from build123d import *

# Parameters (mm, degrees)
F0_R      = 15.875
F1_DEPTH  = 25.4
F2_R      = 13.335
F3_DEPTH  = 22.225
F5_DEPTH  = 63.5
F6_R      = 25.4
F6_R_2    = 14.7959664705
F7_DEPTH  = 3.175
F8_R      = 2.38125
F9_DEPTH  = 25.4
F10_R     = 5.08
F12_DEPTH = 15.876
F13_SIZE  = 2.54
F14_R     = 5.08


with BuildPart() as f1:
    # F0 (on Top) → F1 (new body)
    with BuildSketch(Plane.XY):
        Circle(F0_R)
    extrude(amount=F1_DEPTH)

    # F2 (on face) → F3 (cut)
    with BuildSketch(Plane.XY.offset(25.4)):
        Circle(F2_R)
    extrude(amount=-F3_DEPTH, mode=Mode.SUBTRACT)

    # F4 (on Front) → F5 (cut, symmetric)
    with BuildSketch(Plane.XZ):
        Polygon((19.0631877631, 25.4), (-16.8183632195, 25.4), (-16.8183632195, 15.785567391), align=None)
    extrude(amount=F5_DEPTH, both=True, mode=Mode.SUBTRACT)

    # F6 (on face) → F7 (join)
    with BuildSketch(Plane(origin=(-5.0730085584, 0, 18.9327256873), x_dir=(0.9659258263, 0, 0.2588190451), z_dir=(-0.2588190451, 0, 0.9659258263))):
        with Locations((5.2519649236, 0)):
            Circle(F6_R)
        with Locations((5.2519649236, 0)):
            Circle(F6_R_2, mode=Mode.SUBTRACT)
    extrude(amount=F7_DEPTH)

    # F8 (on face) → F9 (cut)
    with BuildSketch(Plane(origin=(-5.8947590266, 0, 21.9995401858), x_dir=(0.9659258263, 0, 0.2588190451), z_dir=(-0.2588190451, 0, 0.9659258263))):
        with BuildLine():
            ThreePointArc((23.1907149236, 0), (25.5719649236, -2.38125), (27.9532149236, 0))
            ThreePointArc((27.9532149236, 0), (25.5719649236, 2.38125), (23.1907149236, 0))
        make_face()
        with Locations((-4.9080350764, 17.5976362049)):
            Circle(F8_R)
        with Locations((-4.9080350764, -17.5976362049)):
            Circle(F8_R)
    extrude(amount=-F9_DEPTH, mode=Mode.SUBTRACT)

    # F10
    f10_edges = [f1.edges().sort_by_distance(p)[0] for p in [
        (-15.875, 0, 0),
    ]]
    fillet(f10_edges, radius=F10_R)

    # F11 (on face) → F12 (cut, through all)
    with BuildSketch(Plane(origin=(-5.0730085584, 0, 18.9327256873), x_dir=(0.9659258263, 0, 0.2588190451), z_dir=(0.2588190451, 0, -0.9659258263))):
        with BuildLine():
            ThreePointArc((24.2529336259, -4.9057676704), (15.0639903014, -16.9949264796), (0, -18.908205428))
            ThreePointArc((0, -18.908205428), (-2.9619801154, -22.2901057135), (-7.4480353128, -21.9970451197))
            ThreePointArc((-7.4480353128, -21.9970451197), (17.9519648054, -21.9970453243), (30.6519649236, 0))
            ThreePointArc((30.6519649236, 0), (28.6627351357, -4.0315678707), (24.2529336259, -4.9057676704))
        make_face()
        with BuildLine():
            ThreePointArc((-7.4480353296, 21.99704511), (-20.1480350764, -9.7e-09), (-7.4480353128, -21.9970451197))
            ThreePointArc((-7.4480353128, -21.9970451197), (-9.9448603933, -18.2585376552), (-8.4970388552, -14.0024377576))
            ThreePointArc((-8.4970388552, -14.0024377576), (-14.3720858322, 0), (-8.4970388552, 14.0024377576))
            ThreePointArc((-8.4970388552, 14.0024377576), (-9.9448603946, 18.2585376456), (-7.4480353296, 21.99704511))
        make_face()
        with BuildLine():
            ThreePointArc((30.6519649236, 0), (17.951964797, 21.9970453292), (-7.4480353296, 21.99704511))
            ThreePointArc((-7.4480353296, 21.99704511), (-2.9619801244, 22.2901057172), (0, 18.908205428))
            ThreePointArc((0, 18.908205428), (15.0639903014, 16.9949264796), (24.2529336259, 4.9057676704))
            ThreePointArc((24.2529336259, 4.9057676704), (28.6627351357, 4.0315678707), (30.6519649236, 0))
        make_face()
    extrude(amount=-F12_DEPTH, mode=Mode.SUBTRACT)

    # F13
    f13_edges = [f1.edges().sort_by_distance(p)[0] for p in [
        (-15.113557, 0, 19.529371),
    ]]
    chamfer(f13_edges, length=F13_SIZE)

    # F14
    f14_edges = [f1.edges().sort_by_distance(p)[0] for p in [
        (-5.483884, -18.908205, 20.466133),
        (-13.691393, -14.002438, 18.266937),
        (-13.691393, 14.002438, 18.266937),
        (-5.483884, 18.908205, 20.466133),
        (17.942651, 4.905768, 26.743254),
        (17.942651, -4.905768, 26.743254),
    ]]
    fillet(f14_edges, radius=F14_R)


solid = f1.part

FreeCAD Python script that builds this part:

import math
import FreeCAD as App
import Part
import Sketcher
from FreeCAD import Vector
Q = App.Units.Quantity


def edges_at(feature, points):
    """Names of the edges that pass closest to the given points."""
    edges = feature.Shape.Edges
    near = lambda p: min(range(len(edges)), key=lambda i: edges[i].distToShape(Part.Vertex(*p))[0])
    return sorted({f"Edge{near(p) + 1}" for p in points})

doc = App.newDocument("Part")
body = doc.addObject("PartDesign::Body", "Body")

sketch1 = doc.addObject("Sketcher::SketchObject", "Sketch")
body.addObject(sketch1)
sketch1.AttachmentSupport = (doc.XY_Plane, [""])
sketch1.MapMode = "FlatFace"
sketch1.addGeometry(Part.Circle(Vector(0, 0, 0), Vector(0, 0, 1), 16), False)
sketch1.addConstraint(Sketcher.Constraint("Coincident", 0, 3, -1, 1))
sketch1.addConstraint(Sketcher.Constraint("Diameter", 0, Q("1.25 in")))
pad1 = doc.addObject("PartDesign::Pad", "Pad")
body.addObject(pad1)
pad1.Profile = sketch1
pad1.Length = Q("1 in")

sketch2 = doc.addObject("Sketcher::SketchObject", "Sketch001")
body.addObject(sketch2)
sketch2.AttachmentSupport = (doc.XY_Plane, [""])
sketch2.MapMode = "FlatFace"
sketch2.AttachmentOffset = App.Placement(Vector(0, 0, 1 * 25.4), App.Rotation())
sketch2.addGeometry(Part.Circle(Vector(0, 0, 0), Vector(0, 0, 1), 13), False)
sketch2.addConstraint(Sketcher.Constraint("Coincident", 0, 3, -1, 1))
sketch2.addConstraint(Sketcher.Constraint("Diameter", 0, Q("1.05 in")))
pocket1 = doc.addObject("PartDesign::Pocket", "Pocket")
body.addObject(pocket1)
pocket1.Profile = sketch2
pocket1.Length = Q("0.875 in")

sketch3 = doc.addObject("Sketcher::SketchObject", "Sketch002")
body.addObject(sketch3)
sketch3.AttachmentSupport = (doc.XZ_Plane, [""])
sketch3.MapMode = "FlatFace"
sketch3.addGeometry(Part.LineSegment(Vector(19, 25, 0), Vector(-17, 25, 0)), False)
sketch3.addGeometry(Part.LineSegment(Vector(-17, 25, 0), Vector(-17, 16, 0)), False)
sketch3.addGeometry(Part.LineSegment(Vector(-17, 16, 0), Vector(19, 25, 0)), False)
sketch3.addConstraint(Sketcher.Constraint("Coincident", 0, 2, 1, 1))
sketch3.addConstraint(Sketcher.Constraint("Coincident", 1, 2, 2, 1))
sketch3.addConstraint(Sketcher.Constraint("Coincident", 2, 2, 0, 1))
sketch3.addConstraint(Sketcher.Constraint("Horizontal", 0))
sketch3.addConstraint(Sketcher.Constraint("Vertical", 1))
sketch3.addConstraint(Sketcher.Constraint("DistanceY", -1, 1, 0, 2, Q("1 in")))
sketch3.addConstraint(Sketcher.Constraint("Angle", 2, Q("15 deg")))
sketch3.addConstraint(Sketcher.Constraint("DistanceX", 0, 2, 0, 1, Q("35.881551 mm")))
sketch3.addConstraint(Sketcher.Constraint("DistanceX", 0, 2, -1, 1, Q("16.818363 mm")))
pocket2 = doc.addObject("PartDesign::Pocket", "Pocket001")
body.addObject(pocket2)
pocket2.Profile = sketch3
pocket2.Length = Q("5 in")
pocket2.Midplane = True

sketch4 = doc.addObject("Sketcher::SketchObject", "Sketch003")
body.addObject(sketch4)
sketch4.Placement = App.Placement(Vector(-5.073009, 0, 18.932726), App.Rotation(Vector(0.965925826, 0, 0.258819045), Vector(0, 0.999999999, 0), Vector(-0.258819045, 0, 0.965925826), "ZXY"))
sketch4.addGeometry(Part.Circle(Vector(5, 0, 0), Vector(0, 0, 1), 25), False)
sketch4.addGeometry(Part.Circle(Vector(5, 0, 0), Vector(0, 0, 1), 15), False)
sketch4.addConstraint(Sketcher.Constraint("Coincident", 1, 3, 0, 3))
sketch4.addConstraint(Sketcher.Constraint("PointOnObject", 0, 3, -1))
sketch4.addConstraint(Sketcher.Constraint("Diameter", 0, Q("2 in")))
sketch4.addConstraint(Sketcher.Constraint("Diameter", 1, Q("29.591933 mm")))
sketch4.addConstraint(Sketcher.Constraint("DistanceX", -1, 1, 0, 3, Q("5.251965 mm")))
pad2 = doc.addObject("PartDesign::Pad", "Pad001")
body.addObject(pad2)
pad2.Profile = sketch4
pad2.Length = Q("0.125 in")

sketch5 = doc.addObject("Sketcher::SketchObject", "Sketch004")
body.addObject(sketch5)
sketch5.Placement = App.Placement(Vector(-5.894759, 0, 21.99954), App.Rotation(Vector(0.965925826, 0, 0.258819045), Vector(0, 0.999999999, 0), Vector(-0.258819045, 0, 0.965925826), "ZXY"))
sketch5.addGeometry(Part.Circle(Vector(25.6, 0, 0), Vector(0, 0, 1), 2.4), False)
sketch5.addGeometry(Part.Circle(Vector(-4.9, 17.6, 0), Vector(0, 0, 1), 2.4), False)
sketch5.addGeometry(Part.Circle(Vector(-4.9, -17.6, 0), Vector(0, 0, 1), 2.4), False)
sketch5.addConstraint(Sketcher.Constraint("Equal", 0, 1))
sketch5.addConstraint(Sketcher.Constraint("Equal", 1, 2))
sketch5.addConstraint(Sketcher.Constraint("Symmetric", 1, 3, 2, 3, -1))
sketch5.addConstraint(Sketcher.Constraint("PointOnObject", 0, 3, -1))
sketch5.addConstraint(Sketcher.Constraint("Diameter", 0, Q("0.1875 in")))
sketch5.addConstraint(Sketcher.Constraint("DistanceX", 1, 3, 0, 3, Q("1.2 in")))
sketch5.addConstraint(Sketcher.Constraint("DistanceX", -1, 1, 0, 3, Q("25.571965 mm")))
sketch5.addConstraint(Sketcher.Constraint("DistanceY", -1, 1, 1, 3, Q("17.597636 mm")))
pocket3 = doc.addObject("PartDesign::Pocket", "Pocket002")
body.addObject(pocket3)
pocket3.Profile = sketch5
pocket3.Length = Q("1 in")
doc.recompute()

fillet = doc.addObject("PartDesign::Fillet", "Fillet")
body.addObject(fillet)
fillet.Base = (pocket3, edges_at(pocket3, [(-15.875, 0, 0)]))
fillet.Radius = Q("0.2 in")

sketch6 = doc.addObject("Sketcher::SketchObject", "Sketch005")
body.addObject(sketch6)
sketch6.Placement = App.Placement(Vector(-5.073009, 0, 18.932726), App.Rotation(Vector(0.965925826, 0, 0.258819045), Vector(0, -0.999999999, 0), Vector(0.258819045, 0, -0.965925826), "ZXY"))
sketch6.addGeometry(Part.ArcOfCircle(Part.Circle(Vector(5, 0, 0), Vector(0, 0, 1), 20), math.radians(-106), math.radians(-14)), False)
sketch6.addGeometry(Part.ArcOfCircle(Part.Circle(Vector(-5, -18, 0), Vector(0, 0, 1), 5), math.radians(-120), math.radians(-15)), False)
sketch6.addGeometry(Part.ArcOfCircle(Part.Circle(Vector(5, 0, 0), Vector(0, 0, 1), 25), math.radians(-120), math.radians(0)), False)
sketch6.addGeometry(Part.ArcOfCircle(Part.Circle(Vector(26, 0, 0), Vector(0, 0, 1), 5), math.radians(-105), math.radians(0)), False)
sketch6.addGeometry(Part.ArcOfCircle(Part.Circle(Vector(5, 0, 0), Vector(0, 0, 1), 25), math.radians(120), math.radians(240)), False)
sketch6.addGeometry(Part.ArcOfCircle(Part.Circle(Vector(-5, -18, 0), Vector(0, 0, 1), 5), math.radians(135), math.radians(240)), False)
sketch6.addGeometry(Part.ArcOfCircle(Part.Circle(Vector(5, 0, 0), Vector(0, 0, 1), 20), math.radians(134), math.radians(226)), False)
sketch6.addGeometry(Part.ArcOfCircle(Part.Circle(Vector(-5, 18, 0), Vector(0, 0, 1), 5), math.radians(120), math.radians(225)), False)
sketch6.addGeometry(Part.ArcOfCircle(Part.Circle(Vector(5, 0, 0), Vector(0, 0, 1), 25), math.radians(0), math.radians(120)), False)
sketch6.addGeometry(Part.ArcOfCircle(Part.Circle(Vector(-5, 18, 0), Vector(0, 0, 1), 5), math.radians(15), math.radians(120)), False)
sketch6.addGeometry(Part.ArcOfCircle(Part.Circle(Vector(5, 0, 0), Vector(0, 0, 1), 20), math.radians(14), math.radians(106)), False)
sketch6.addGeometry(Part.ArcOfCircle(Part.Circle(Vector(26, 0, 0), Vector(0, 0, 1), 5), math.radians(0), math.radians(105)), False)
sketch6.addConstraint(Sketcher.Constraint("Coincident", 0, 1, 1, 2))
sketch6.addConstraint(Sketcher.Constraint("Tangent", 1, 1, 2, 1))
sketch6.addConstraint(Sketcher.Constraint("Tangent", 2, 2, 3, 2))
sketch6.addConstraint(Sketcher.Constraint("Coincident", 3, 1, 0, 2))
sketch6.addConstraint(Sketcher.Constraint("Tangent", 4, 2, 5, 2))
sketch6.addConstraint(Sketcher.Constraint("Coincident", 5, 1, 6, 2))
sketch6.addConstraint(Sketcher.Constraint("Coincident", 6, 1, 7, 2))
sketch6.addConstraint(Sketcher.Constraint("Tangent", 7, 1, 4, 1))
sketch6.addConstraint(Sketcher.Constraint("Tangent", 8, 2, 9, 2))
sketch6.addConstraint(Sketcher.Constraint("Coincident", 9, 1, 10, 2))
sketch6.addConstraint(Sketcher.Constraint("Coincident", 10, 1, 11, 2))
sketch6.addConstraint(Sketcher.Constraint("Tangent", 11, 1, 8, 1))
sketch6.addConstraint(Sketcher.Constraint("Coincident", 2, 3, 0, 3))
sketch6.addConstraint(Sketcher.Constraint("Coincident", 4, 3, 0, 3))
sketch6.addConstraint(Sketcher.Constraint("Coincident", 5, 3, 1, 3))
sketch6.addConstraint(Sketcher.Constraint("Coincident", 6, 3, 0, 3))
sketch6.addConstraint(Sketcher.Constraint("Coincident", 8, 3, 0, 3))
sketch6.addConstraint(Sketcher.Constraint("Coincident", 9, 3, 7, 3))
sketch6.addConstraint(Sketcher.Constraint("Coincident", 10, 3, 0, 3))
sketch6.addConstraint(Sketcher.Constraint("Coincident", 11, 3, 3, 3))
sketch6.addConstraint(Sketcher.Constraint("Equal", 1, 3))
sketch6.addConstraint(Sketcher.Constraint("Equal", 2, 4))
sketch6.addConstraint(Sketcher.Constraint("Equal", 0, 6))
sketch6.addConstraint(Sketcher.Constraint("Equal", 5, 7))
sketch6.addConstraint(Sketcher.Constraint("Equal", 4, 8))
sketch6.addConstraint(Sketcher.Constraint("Equal", 6, 10))
sketch6.addConstraint(Sketcher.Constraint("Symmetric", 0, 1, 9, 1, -1, 1))
sketch6.addConstraint(Sketcher.Constraint("Symmetric", 3, 1, 10, 1, -1))
sketch6.addConstraint(Sketcher.Constraint("Radius", 2, Q("1 in")))
sketch6.addConstraint(Sketcher.Constraint("Radius", 1, Q("0.2 in")))
sketch6.addConstraint(Sketcher.Constraint("DistanceX", 1, 3, 0, 3, Q("0.4 in")))
sketch6.addConstraint(Sketcher.Constraint("Radius", 0, Q("19.624051 mm")))
pocket4 = doc.addObject("PartDesign::Pocket", "Pocket003")
body.addObject(pocket4)
pocket4.Profile = sketch6
pocket4.Type = "ThroughAll"
doc.recompute()

chamfer = doc.addObject("PartDesign::Chamfer", "Chamfer")
body.addObject(chamfer)
chamfer.Base = (pocket4, edges_at(pocket4, [(-15.114, 0, 19.529)]))
chamfer.Size = Q("0.1 in")
doc.recompute()

fillet2 = doc.addObject("PartDesign::Fillet", "Fillet001")
body.addObject(fillet2)
fillet2.Base = (chamfer, edges_at(chamfer, [
    (-5.484, -18.908, 20.466),
    (-13.691, -14.002, 18.267),
    (-13.691, 14.002, 18.267),
    (-5.484, 18.908, 20.466),
    (17.943, 4.906, 26.743),
    (17.943, -4.906, 26.743),
]))
fillet2.Radius = Q("0.2 in")

doc.recompute()
